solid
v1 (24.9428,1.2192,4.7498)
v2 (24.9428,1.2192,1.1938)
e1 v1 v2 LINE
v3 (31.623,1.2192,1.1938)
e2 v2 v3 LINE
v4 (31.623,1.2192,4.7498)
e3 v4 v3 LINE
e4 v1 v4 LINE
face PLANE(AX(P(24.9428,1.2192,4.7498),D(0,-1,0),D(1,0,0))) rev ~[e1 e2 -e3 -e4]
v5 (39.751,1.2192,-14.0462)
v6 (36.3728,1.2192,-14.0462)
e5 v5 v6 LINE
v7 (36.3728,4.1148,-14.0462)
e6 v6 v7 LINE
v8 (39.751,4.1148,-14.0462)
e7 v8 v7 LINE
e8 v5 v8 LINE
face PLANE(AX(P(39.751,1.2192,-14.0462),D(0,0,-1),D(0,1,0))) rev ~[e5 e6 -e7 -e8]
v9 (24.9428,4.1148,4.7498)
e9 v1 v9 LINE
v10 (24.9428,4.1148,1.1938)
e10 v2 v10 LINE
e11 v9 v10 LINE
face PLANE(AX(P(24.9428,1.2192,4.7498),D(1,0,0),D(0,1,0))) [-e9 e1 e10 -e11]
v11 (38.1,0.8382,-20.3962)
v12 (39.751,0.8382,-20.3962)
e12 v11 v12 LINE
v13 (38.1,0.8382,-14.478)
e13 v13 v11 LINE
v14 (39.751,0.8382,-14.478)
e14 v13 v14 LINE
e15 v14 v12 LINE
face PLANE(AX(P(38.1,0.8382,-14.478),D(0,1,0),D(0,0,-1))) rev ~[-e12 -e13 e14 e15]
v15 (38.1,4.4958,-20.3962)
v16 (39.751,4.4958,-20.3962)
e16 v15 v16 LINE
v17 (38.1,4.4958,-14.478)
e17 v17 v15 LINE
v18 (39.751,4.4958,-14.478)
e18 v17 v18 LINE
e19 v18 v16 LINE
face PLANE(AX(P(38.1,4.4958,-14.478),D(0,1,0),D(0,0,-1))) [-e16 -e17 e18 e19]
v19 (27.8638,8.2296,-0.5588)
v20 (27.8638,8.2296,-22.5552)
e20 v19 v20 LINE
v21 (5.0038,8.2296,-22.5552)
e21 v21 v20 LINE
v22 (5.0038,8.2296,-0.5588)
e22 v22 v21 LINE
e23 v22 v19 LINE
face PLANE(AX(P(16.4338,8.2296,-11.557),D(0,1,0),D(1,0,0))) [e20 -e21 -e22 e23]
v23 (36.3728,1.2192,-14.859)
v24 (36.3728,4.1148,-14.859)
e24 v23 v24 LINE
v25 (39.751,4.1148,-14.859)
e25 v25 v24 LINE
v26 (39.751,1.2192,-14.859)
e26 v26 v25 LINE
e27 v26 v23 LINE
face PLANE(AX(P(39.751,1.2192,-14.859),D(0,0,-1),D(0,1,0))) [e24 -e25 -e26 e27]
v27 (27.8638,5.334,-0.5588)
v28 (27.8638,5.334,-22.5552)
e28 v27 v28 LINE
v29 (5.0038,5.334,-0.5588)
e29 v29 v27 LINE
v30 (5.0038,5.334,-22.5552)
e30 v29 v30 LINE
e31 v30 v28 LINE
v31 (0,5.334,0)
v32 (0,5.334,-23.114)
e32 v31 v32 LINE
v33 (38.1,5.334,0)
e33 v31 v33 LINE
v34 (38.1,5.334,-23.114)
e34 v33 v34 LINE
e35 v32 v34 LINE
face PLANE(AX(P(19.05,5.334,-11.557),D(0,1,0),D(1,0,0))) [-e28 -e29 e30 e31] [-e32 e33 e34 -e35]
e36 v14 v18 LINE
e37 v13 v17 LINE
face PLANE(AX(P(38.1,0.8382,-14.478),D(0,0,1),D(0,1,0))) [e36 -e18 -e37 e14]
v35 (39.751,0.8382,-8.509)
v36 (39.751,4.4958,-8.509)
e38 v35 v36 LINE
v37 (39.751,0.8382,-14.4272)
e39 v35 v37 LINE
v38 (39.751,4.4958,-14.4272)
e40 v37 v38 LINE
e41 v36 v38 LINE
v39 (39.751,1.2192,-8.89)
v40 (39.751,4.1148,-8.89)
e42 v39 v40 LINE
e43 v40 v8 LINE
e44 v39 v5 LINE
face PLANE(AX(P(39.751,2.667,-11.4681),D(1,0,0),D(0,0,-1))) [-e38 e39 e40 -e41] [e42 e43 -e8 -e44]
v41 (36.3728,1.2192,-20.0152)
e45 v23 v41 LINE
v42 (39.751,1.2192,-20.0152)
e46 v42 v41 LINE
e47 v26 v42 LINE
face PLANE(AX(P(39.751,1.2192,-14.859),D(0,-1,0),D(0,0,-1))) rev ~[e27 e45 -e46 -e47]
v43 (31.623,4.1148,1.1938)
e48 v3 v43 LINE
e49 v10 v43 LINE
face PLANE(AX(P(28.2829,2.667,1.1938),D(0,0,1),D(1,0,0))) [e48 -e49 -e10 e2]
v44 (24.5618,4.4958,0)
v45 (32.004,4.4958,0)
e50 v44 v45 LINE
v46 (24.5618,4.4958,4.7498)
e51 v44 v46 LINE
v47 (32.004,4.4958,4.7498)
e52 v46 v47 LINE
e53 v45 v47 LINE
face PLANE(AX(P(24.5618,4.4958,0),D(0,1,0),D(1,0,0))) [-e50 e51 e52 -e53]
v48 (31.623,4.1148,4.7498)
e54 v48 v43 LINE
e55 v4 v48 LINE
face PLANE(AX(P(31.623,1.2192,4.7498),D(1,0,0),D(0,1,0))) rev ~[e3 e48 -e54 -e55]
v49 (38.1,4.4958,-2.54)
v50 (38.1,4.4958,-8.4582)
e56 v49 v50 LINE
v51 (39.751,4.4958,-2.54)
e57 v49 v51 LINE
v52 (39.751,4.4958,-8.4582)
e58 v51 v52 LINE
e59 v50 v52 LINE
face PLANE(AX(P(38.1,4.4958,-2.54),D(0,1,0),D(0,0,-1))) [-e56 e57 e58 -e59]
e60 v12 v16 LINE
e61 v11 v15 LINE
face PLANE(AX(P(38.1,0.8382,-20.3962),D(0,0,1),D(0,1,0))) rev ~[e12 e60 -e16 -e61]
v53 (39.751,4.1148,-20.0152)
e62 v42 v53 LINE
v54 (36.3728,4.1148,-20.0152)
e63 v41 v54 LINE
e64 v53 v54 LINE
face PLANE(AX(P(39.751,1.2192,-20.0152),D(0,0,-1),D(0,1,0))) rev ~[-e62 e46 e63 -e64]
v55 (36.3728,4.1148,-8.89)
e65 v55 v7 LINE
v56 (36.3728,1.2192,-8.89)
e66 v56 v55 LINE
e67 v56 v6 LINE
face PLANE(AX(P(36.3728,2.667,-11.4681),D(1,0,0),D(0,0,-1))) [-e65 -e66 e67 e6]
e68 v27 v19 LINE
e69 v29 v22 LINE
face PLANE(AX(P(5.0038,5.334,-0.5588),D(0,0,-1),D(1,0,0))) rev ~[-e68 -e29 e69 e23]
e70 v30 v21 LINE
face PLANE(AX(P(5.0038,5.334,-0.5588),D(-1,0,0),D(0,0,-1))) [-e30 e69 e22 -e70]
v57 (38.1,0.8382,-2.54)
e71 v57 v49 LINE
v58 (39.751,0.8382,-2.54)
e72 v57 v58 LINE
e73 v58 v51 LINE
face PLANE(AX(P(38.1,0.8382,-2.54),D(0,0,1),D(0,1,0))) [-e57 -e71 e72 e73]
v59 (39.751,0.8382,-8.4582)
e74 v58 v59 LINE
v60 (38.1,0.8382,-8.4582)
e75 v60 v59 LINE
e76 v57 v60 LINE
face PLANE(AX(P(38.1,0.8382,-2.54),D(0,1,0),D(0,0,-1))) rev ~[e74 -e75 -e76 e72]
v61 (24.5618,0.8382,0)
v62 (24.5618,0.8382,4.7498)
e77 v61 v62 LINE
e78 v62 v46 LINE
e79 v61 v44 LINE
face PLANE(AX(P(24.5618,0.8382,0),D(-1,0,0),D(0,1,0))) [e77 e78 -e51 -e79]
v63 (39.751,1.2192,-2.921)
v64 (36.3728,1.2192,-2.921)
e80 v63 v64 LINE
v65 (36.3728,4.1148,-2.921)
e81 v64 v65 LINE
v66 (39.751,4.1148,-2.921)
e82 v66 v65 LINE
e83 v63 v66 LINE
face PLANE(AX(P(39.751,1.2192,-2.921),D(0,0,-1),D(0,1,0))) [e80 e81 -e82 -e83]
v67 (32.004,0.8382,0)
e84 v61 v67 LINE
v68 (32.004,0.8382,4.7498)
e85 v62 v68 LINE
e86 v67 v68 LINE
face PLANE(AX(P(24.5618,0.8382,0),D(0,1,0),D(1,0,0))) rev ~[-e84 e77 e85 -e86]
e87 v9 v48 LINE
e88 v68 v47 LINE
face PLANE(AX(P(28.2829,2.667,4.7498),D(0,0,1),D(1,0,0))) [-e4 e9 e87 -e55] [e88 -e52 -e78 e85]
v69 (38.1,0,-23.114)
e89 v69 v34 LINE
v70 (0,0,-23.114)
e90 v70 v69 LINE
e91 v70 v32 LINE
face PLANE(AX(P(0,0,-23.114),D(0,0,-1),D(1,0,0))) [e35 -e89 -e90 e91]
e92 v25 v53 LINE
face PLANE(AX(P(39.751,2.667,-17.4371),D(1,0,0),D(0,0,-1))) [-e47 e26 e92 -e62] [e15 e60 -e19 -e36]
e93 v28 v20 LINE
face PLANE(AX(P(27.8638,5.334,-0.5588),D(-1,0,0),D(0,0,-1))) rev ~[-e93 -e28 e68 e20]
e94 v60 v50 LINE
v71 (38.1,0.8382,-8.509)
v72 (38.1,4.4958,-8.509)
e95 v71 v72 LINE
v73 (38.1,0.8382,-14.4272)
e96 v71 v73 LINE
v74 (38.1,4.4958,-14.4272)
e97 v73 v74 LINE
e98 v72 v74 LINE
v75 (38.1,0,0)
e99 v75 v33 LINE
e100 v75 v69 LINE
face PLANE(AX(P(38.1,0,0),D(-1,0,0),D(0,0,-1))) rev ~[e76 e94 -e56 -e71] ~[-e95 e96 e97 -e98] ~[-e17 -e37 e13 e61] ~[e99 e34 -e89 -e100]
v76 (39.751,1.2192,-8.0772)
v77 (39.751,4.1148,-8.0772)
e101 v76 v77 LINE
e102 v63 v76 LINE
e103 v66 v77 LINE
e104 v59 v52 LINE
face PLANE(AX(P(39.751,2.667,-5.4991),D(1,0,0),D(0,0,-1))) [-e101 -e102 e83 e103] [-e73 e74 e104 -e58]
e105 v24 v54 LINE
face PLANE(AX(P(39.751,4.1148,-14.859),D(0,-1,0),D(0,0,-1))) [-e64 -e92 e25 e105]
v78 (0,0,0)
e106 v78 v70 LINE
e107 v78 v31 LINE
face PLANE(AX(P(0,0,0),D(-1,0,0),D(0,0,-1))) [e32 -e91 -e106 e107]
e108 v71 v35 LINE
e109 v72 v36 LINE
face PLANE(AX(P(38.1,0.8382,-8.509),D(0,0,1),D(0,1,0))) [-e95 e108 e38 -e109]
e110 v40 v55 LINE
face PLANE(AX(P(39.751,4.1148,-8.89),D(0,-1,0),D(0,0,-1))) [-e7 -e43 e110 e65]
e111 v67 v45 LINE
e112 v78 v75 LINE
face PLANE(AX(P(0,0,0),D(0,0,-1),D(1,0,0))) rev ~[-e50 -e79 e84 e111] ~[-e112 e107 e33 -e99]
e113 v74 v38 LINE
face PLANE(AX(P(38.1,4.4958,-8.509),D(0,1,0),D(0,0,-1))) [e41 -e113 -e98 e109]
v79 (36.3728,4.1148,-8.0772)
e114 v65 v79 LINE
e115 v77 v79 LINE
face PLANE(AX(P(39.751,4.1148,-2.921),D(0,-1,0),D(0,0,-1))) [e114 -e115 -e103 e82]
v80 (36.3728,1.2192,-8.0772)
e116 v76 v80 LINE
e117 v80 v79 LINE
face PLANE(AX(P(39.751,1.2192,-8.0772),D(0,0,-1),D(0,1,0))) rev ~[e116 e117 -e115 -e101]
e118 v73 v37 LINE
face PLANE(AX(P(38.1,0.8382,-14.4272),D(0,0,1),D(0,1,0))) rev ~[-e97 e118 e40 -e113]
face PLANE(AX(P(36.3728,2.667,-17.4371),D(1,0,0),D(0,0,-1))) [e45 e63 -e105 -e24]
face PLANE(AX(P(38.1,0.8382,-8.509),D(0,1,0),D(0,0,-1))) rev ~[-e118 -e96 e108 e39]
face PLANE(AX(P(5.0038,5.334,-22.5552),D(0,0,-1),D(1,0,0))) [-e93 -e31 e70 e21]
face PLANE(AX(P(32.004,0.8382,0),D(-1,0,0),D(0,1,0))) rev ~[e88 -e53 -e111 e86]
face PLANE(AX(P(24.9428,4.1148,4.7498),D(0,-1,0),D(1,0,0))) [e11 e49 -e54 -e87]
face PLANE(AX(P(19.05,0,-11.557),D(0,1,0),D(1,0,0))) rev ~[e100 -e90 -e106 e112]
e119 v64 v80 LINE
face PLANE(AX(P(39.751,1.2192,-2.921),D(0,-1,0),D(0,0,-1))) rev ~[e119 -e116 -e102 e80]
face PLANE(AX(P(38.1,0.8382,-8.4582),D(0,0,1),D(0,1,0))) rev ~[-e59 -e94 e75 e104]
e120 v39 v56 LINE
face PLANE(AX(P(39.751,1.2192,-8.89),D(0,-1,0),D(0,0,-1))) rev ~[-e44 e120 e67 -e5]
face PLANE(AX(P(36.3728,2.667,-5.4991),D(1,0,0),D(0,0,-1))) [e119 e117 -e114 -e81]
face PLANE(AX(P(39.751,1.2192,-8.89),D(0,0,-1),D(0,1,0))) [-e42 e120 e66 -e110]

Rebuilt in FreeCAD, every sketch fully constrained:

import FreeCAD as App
import Part
import Sketcher
from FreeCAD import Vector
Q = App.Units.Quantity


def add_polygon(sketch, points):
    """Adds a closed chain of lines whose ends are joined by coincident constraints."""
    first, n = sketch.GeometryCount, len(points)
    for a, b in zip(points, points[1:] + points[:1]):
        sketch.addGeometry(Part.LineSegment(App.Vector(*a, 0), App.Vector(*b, 0)), False)
    for i in range(n):
        sketch.addConstraint(Sketcher.Constraint("Coincident", first + i, 2, first + (i + 1) % n, 1))

doc = App.newDocument("Part")
body = doc.addObject("PartDesign::Body", "Body")

# Sketch on XZ plane
sketch1 = body.newObject("Sketcher::SketchObject", "Sketch")
sketch1.AttachmentSupport = (doc.getObject("XZ_Plane"), [""])
sketch1.MapMode = "FlatFace"
add_polygon(sketch1, [(0, -23), (0, 0), (38, 0), (38, -23)])  # lines 0-3
sketch1.addConstraint(Sketcher.Constraint("Vertical", 0))
sketch1.addConstraint(Sketcher.Constraint("Horizontal", 1))
sketch1.addConstraint(Sketcher.Constraint("Vertical", 2))
sketch1.addConstraint(Sketcher.Constraint("Horizontal", 3))
sketch1.addConstraint(Sketcher.Constraint("Coincident", 0, 2, -1, 1))
sketch1.addConstraint(Sketcher.Constraint("DistanceX", 1, 1, 1, 2, Q("1.5 in")))
sketch1.addConstraint(Sketcher.Constraint("DistanceY", 0, 1, 0, 2, Q("0.91 in")))
pad1 = body.newObject("PartDesign::Pad", "Pad")
pad1.Profile = sketch1
pad1.Length = Q("0.21 in")
pad1.Reversed = True

# Sketch on XZ plane
sketch2 = body.newObject("Sketcher::SketchObject", "Sketch001")
sketch2.AttachmentSupport = (doc.getObject("XZ_Plane"), [""])
sketch2.MapMode = "FlatFace"
sketch2.AttachmentOffset = App.Placement(Vector(0, 0, -0.21 * 25.4), App.Rotation())
add_polygon(sketch2, [(5, -23), (5, -1), (28, -1), (28, -23)])  # lines 0-3
sketch2.addConstraint(Sketcher.Constraint("Vertical", 0))
sketch2.addConstraint(Sketcher.Constraint("Horizontal", 1))
sketch2.addConstraint(Sketcher.Constraint("Vertical", 2))
sketch2.addConstraint(Sketcher.Constraint("Horizontal", 3))
sketch2.addConstraint(Sketcher.Constraint("DistanceX", 1, 1, 1, 2, Q("0.9 in")))
sketch2.addConstraint(Sketcher.Constraint("DistanceY", 0, 1, 0, 2, Q("0.866 in")))
sketch2.addConstraint(Sketcher.Constraint("DistanceX", -1, 1, 0, 2, Q("0.197 in")))
sketch2.addConstraint(Sketcher.Constraint("DistanceY", 0, 2, -1, 1, Q("0.022 in")))
pad2 = body.newObject("PartDesign::Pad", "Pad001")
pad2.Profile = sketch2
pad2.Length = Q("0.114 in")
pad2.Reversed = True

# Sketch on XY plane
sketch3 = body.newObject("Sketcher::SketchObject", "Sketch002")
sketch3.AttachmentSupport = (doc.getObject("XY_Plane"), [""])
sketch3.MapMode = "FlatFace"
add_polygon(sketch3, [(24.6, 4.5), (24.6, 0.8), (32, 0.8), (32, 4.5)])  # lines 0-3
sketch3.addConstraint(Sketcher.Constraint("Vertical", 0))
sketch3.addConstraint(Sketcher.Constraint("Horizontal", 1))
sketch3.addConstraint(Sketcher.Constraint("Vertical", 2))
sketch3.addConstraint(Sketcher.Constraint("Horizontal", 3))
sketch3.addConstraint(Sketcher.Constraint("DistanceX", 1, 1, 1, 2, Q("0.293 in")))
sketch3.addConstraint(Sketcher.Constraint("DistanceY", 0, 2, 0, 1, Q("0.144 in")))
sketch3.addConstraint(Sketcher.Constraint("DistanceX", -1, 1, 1, 2, Q("1.26 in")))
sketch3.addConstraint(Sketcher.Constraint("DistanceY", -1, 1, 0, 2, Q("0.033 in")))
pad3 = body.newObject("PartDesign::Pad", "Pad002")
pad3.Profile = sketch3
pad3.Length = Q("0.187 in")

# Sketch on XY plane
sketch4 = body.newObject("Sketcher::SketchObject", "Sketch003")
sketch4.AttachmentSupport = (doc.getObject("XY_Plane"), [""])
sketch4.MapMode = "FlatFace"
sketch4.AttachmentOffset = App.Placement(Vector(0, 0, 0.187 * 25.4), App.Rotation())
add_polygon(sketch4, [(24.9, 4.1), (24.9, 1.2), (31.6, 1.2), (31.6, 4.1)])  # lines 0-3
sketch4.addConstraint(Sketcher.Constraint("Vertical", 0))
sketch4.addConstraint(Sketcher.Constraint("Horizontal", 1))
sketch4.addConstraint(Sketcher.Constraint("Vertical", 2))
sketch4.addConstraint(Sketcher.Constraint("Horizontal", 3))
sketch4.addConstraint(Sketcher.Constraint("DistanceX", 1, 1, 1, 2, Q("0.263 in")))
sketch4.addConstraint(Sketcher.Constraint("DistanceY", 0, 2, 0, 1, Q("0.114 in")))
sketch4.addConstraint(Sketcher.Constraint("DistanceX", -1, 1, 0, 2, Q("0.982 in")))
sketch4.addConstraint(Sketcher.Constraint("DistanceY", -1, 1, 0, 2, Q("0.048 in")))
pocket1 = body.newObject("PartDesign::Pocket", "Pocket")
pocket1.Profile = sketch4
pocket1.Length = Q("0.14 in")

# Sketch on YZ plane
sketch5 = body.newObject("Sketcher::SketchObject", "Sketch004")
sketch5.AttachmentSupport = (doc.getObject("YZ_Plane"), [""])
sketch5.MapMode = "FlatFace"
sketch5.AttachmentOffset = App.Placement(Vector(0, 0, 1.5 * 25.4), App.Rotation())
add_polygon(sketch5, [(4.5, -2.5), (0.8, -2.5), (0.8, -8.5), (4.5, -8.5)])  # lines 0-3
sketch5.addConstraint(Sketcher.Constraint("Horizontal", 0))
sketch5.addConstraint(Sketcher.Constraint("Vertical", 1))
sketch5.addConstraint(Sketcher.Constraint("Horizontal", 2))
sketch5.addConstraint(Sketcher.Constraint("Vertical", 3))
sketch5.addConstraint(Sketcher.Constraint("DistanceY", 0, 2, -1, 1, Q("0.1 in")))
sketch5.addConstraint(Sketcher.Constraint("DistanceX", 0, 2, 0, 1, Q("0.144 in")))
sketch5.addConstraint(Sketcher.Constraint("DistanceY", 1, 2, 1, 1, Q("0.233 in")))
sketch5.addConstraint(Sketcher.Constraint("DistanceX", -1, 1, 0, 2, Q("0.033 in")))
pad4 = body.newObject("PartDesign::Pad", "Pad003")
pad4.Profile = sketch5
pad4.Length = Q("0.065 in")

# Sketch on YZ plane
sketch6 = body.newObject("Sketcher::SketchObject", "Sketch005")
sketch6.AttachmentSupport = (doc.getObject("YZ_Plane"), [""])
sketch6.MapMode = "FlatFace"
sketch6.AttachmentOffset = App.Placement(Vector(0, 0, 1.565 * 25.4), App.Rotation())
add_polygon(sketch6, [(4.1, -2.9), (1.2, -2.9), (1.2, -8.1), (4.1, -8.1)])  # lines 0-3
sketch6.addConstraint(Sketcher.Constraint("Horizontal", 0))
sketch6.addConstraint(Sketcher.Constraint("Vertical", 1))
sketch6.addConstraint(Sketcher.Constraint("Horizontal", 2))
sketch6.addConstraint(Sketcher.Constraint("Vertical", 3))
sketch6.addConstraint(Sketcher.Constraint("DistanceX", 0, 2, 0, 1, Q("0.114 in")))
sketch6.addConstraint(Sketcher.Constraint("DistanceY", 1, 2, 1, 1, Q("0.203 in")))
sketch6.addConstraint(Sketcher.Constraint("DistanceX", -1, 1, 0, 2, Q("0.048 in")))
sketch6.addConstraint(Sketcher.Constraint("DistanceY", 0, 2, -1, 1, Q("0.115 in")))
pocket2 = body.newObject("PartDesign::Pocket", "Pocket001")
pocket2.Profile = sketch6
pocket2.Length = Q("0.133 in")
doc.recompute()

linearpattern = body.newObject("PartDesign::LinearPattern", "LinearPattern")
linearpattern.Originals = [pad4, pocket2]
linearpattern.Direction = (doc.getObject("Z_Axis"), [""])
linearpattern.Mode = "offset"
linearpattern.Offset = Q("0.235 in")
linearpattern.Occurrences = 3
linearpattern.Reversed = True
body.Tip = linearpattern

doc.recompute()
